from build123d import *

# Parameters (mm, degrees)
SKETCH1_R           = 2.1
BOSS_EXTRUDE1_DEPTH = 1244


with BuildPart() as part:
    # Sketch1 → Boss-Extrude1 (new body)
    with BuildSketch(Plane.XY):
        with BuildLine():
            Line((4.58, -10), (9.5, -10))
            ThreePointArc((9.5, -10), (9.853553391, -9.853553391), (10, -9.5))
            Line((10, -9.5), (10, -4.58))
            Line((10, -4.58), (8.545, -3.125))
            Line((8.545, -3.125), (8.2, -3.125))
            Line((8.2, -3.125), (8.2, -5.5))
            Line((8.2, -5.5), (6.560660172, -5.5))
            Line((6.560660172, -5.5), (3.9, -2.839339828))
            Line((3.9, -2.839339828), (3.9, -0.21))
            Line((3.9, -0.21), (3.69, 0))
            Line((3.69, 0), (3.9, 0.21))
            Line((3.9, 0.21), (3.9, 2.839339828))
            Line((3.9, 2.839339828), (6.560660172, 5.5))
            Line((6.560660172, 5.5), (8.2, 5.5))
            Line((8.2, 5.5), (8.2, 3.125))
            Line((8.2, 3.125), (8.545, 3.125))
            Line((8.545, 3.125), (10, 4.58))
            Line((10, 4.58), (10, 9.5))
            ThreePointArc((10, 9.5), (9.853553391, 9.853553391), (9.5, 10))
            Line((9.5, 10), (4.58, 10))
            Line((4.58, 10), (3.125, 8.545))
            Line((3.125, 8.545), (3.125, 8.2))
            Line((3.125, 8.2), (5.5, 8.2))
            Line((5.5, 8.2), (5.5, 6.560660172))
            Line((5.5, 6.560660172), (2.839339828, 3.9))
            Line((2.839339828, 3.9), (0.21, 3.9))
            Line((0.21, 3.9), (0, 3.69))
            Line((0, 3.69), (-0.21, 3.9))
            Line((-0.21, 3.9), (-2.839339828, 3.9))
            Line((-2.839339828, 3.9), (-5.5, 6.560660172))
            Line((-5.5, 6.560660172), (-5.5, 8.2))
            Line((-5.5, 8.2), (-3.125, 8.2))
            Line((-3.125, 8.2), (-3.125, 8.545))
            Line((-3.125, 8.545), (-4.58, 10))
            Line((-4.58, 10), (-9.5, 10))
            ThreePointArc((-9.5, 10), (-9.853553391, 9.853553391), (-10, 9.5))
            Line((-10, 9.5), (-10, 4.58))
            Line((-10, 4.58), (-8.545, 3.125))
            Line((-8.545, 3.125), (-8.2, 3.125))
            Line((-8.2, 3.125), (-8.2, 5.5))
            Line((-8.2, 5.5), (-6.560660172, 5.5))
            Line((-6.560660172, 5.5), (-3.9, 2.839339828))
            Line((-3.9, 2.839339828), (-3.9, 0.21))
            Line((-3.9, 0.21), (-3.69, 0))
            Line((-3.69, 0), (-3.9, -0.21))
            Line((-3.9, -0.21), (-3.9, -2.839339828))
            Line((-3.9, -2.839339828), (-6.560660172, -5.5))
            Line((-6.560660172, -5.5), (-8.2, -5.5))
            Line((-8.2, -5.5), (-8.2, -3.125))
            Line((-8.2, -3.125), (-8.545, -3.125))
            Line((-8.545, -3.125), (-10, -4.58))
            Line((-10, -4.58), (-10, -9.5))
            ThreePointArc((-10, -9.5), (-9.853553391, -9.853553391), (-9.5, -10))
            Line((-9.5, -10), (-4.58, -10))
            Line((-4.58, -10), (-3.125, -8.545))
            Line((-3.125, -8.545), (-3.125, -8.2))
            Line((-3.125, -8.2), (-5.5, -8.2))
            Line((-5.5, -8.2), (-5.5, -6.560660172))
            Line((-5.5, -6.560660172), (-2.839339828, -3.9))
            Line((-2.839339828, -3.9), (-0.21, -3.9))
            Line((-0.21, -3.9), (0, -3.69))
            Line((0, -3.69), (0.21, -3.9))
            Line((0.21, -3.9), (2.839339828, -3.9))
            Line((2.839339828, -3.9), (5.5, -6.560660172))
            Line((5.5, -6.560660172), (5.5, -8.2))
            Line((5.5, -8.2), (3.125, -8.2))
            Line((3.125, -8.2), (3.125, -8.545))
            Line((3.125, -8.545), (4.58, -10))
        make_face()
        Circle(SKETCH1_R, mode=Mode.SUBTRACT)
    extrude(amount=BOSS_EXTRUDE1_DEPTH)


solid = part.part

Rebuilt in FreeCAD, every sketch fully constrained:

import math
import FreeCAD as App
import Part
import Sketcher

V = App.Vector
Q = App.Units.Quantity

doc = App.newDocument("Part")
body = doc.addObject("PartDesign::Body", "Body")

# Sketch on XY plane
sketch1 = doc.addObject("Sketcher::SketchObject", "Sketch")
body.addObject(sketch1)
sketch1.AttachmentSupport = (doc.XY_Plane, [""])
sketch1.MapMode = "FlatFace"
sketch1.addGeometry(Part.LineSegment(V(4.58, -10, 0), V(9.5, -10, 0)), False)
sketch1.addGeometry(Part.ArcOfCircle(Part.Circle(V(9.5, -9.5, 0), V(0, 0, 1), 0.5), math.radians(-90), math.radians(0)), False)
sketch1.addGeometry(Part.LineSegment(V(10, -9.5, 0), V(10, -4.58, 0)), False)
sketch1.addGeometry(Part.LineSegment(V(10, -4.58, 0), V(8.54, -3.12, 0)), False)
sketch1.addGeometry(Part.LineSegment(V(8.54, -3.12, 0), V(8.2, -3.12, 0)), False)
sketch1.addGeometry(Part.LineSegment(V(8.2, -3.12, 0), V(8.2, -5.5, 0)), False)
sketch1.addGeometry(Part.LineSegment(V(8.2, -5.5, 0), V(6.56, -5.5, 0)), False)
sketch1.addGeometry(Part.LineSegment(V(6.56, -5.5, 0), V(3.9, -2.84, 0)), False)
sketch1.addGeometry(Part.LineSegment(V(3.9, -2.84, 0), V(3.9, -0.21, 0)), False)
sketch1.addGeometry(Part.LineSegment(V(3.9, -0.21, 0), V(3.69, 0, 0)), False)
sketch1.addGeometry(Part.LineSegment(V(3.69, 0, 0), V(3.9, 0.21, 0)), False)
sketch1.addGeometry(Part.LineSegment(V(3.9, 0.21, 0), V(3.9, 2.84, 0)), False)
sketch1.addGeometry(Part.LineSegment(V(3.9, 2.84, 0), V(6.56, 5.5, 0)), False)
sketch1.addGeometry(Part.LineSegment(V(6.56, 5.5, 0), V(8.2, 5.5, 0)), False)
sketch1.addGeometry(Part.LineSegment(V(8.2, 5.5, 0), V(8.2, 3.12, 0)), False)
sketch1.addGeometry(Part.LineSegment(V(8.2, 3.12, 0), V(8.54, 3.12, 0)), False)
sketch1.addGeometry(Part.LineSegment(V(8.54, 3.12, 0), V(10, 4.58, 0)), False)
sketch1.addGeometry(Part.LineSegment(V(10, 4.58, 0), V(10, 9.5, 0)), False)
sketch1.addGeometry(Part.ArcOfCircle(Part.Circle(V(9.5, 9.5, 0), V(0, 0, 1), 0.5), math.radians(0), math.radians(90)), False)
sketch1.addGeometry(Part.LineSegment(V(9.5, 10, 0), V(4.58, 10, 0)), False)
sketch1.addGeometry(Part.LineSegment(V(4.58, 10, 0), V(3.12, 8.54, 0)), False)
sketch1.addGeometry(Part.LineSegment(V(3.12, 8.54, 0), V(3.12, 8.2, 0)), False)
sketch1.addGeometry(Part.LineSegment(V(3.12, 8.2, 0), V(5.5, 8.2, 0)), False)
sketch1.addGeometry(Part.LineSegment(V(5.5, 8.2, 0), V(5.5, 6.56, 0)), False)
sketch1.addGeometry(Part.LineSegment(V(5.5, 6.56, 0), V(2.84, 3.9, 0)), False)
sketch1.addGeometry(Part.LineSegment(V(2.84, 3.9, 0), V(0.21, 3.9, 0)), False)
sketch1.addGeometry(Part.LineSegment(V(0.21, 3.9, 0), V(0, 3.69, 0)), False)
sketch1.addGeometry(Part.LineSegment(V(0, 3.69, 0), V(-0.21, 3.9, 0)), False)
sketch1.addGeometry(Part.LineSegment(V(-0.21, 3.9, 0), V(-2.84, 3.9, 0)), False)
sketch1.addGeometry(Part.LineSegment(V(-2.84, 3.9, 0), V(-5.5, 6.56, 0)), False)
sketch1.addGeometry(Part.LineSegment(V(-5.5, 6.56, 0), V(-5.5, 8.2, 0)), False)
sketch1.addGeometry(Part.LineSegment(V(-5.5, 8.2, 0), V(-3.12, 8.2, 0)), False)
sketch1.addGeometry(Part.LineSegment(V(-3.12, 8.2, 0), V(-3.12, 8.54, 0)), False)
sketch1.addGeometry(Part.LineSegment(V(-3.12, 8.54, 0), V(-4.58, 10, 0)), False)
sketch1.addGeometry(Part.LineSegment(V(-4.58, 10, 0), V(-9.5, 10, 0)), False)
sketch1.addGeometry(Part.ArcOfCircle(Part.Circle(V(-9.5, 9.5, 0), V(0, 0, 1), 0.5), math.radians(90), math.radians(180)), False)
sketch1.addGeometry(Part.LineSegment(V(-10, 9.5, 0), V(-10, 4.58, 0)), False)
sketch1.addGeometry(Part.LineSegment(V(-10, 4.58, 0), V(-8.54, 3.12, 0)), False)
sketch1.addGeometry(Part.LineSegment(V(-8.54, 3.12, 0), V(-8.2, 3.12, 0)), False)
sketch1.addGeometry(Part.LineSegment(V(-8.2, 3.12, 0), V(-8.2, 5.5, 0)), False)
sketch1.addGeometry(Part.LineSegment(V(-8.2, 5.5, 0), V(-6.56, 5.5, 0)), False)
sketch1.addGeometry(Part.LineSegment(V(-6.56, 5.5, 0), V(-3.9, 2.84, 0)), False)
sketch1.addGeometry(Part.LineSegment(V(-3.9, 2.84, 0), V(-3.9, 0.21, 0)), False)
sketch1.addGeometry(Part.LineSegment(V(-3.9, 0.21, 0), V(-3.69, 0, 0)), False)
sketch1.addGeometry(Part.LineSegment(V(-3.69, 0, 0), V(-3.9, -0.21, 0)), False)
sketch1.addGeometry(Part.LineSegment(V(-3.9, -0.21, 0), V(-3.9, -2.84, 0)), False)
sketch1.addGeometry(Part.LineSegment(V(-3.9, -2.84, 0), V(-6.56, -5.5, 0)), False)
sketch1.addGeometry(Part.LineSegment(V(-6.56, -5.5, 0), V(-8.2, -5.5, 0)), False)
sketch1.addGeometry(Part.LineSegment(V(-8.2, -5.5, 0), V(-8.2, -3.12, 0)), False)
sketch1.addGeometry(Part.LineSegment(V(-8.2, -3.12, 0), V(-8.54, -3.12, 0)), False)
sketch1.addGeometry(Part.LineSegment(V(-8.54, -3.12, 0), V(-10, -4.58, 0)), False)
sketch1.addGeometry(Part.LineSegment(V(-10, -4.58, 0), V(-10, -9.5, 0)), False)
sketch1.addGeometry(Part.ArcOfCircle(Part.Circle(V(-9.5, -9.5, 0), V(0, 0, 1), 0.5), math.radians(180), math.radians(270)), False)
sketch1.addGeometry(Part.LineSegment(V(-9.5, -10, 0), V(-4.58, -10, 0)), False)
sketch1.addGeometry(Part.LineSegment(V(-4.58, -10, 0), V(-3.12, -8.54, 0)), False)
sketch1.addGeometry(Part.LineSegment(V(-3.12, -8.54, 0), V(-3.12, -8.2, 0)), False)
sketch1.addGeometry(Part.LineSegment(V(-3.12, -8.2, 0), V(-5.5, -8.2, 0)), False)
sketch1.addGeometry(Part.LineSegment(V(-5.5, -8.2, 0), V(-5.5, -6.56, 0)), False)
sketch1.addGeometry(Part.LineSegment(V(-5.5, -6.56, 0), V(-2.84, -3.9, 0)), False)
sketch1.addGeometry(Part.LineSegment(V(-2.84, -3.9, 0), V(-0.21, -3.9, 0)), False)
sketch1.addGeometry(Part.LineSegment(V(-0.21, -3.9, 0), V(0, -3.69, 0)), False)
sketch1.addGeometry(Part.LineSegment(V(0, -3.69, 0), V(0.21, -3.9, 0)), False)
sketch1.addGeometry(Part.LineSegment(V(0.21, -3.9, 0), V(2.84, -3.9, 0)), False)
sketch1.addGeometry(Part.LineSegment(V(2.84, -3.9, 0), V(5.5, -6.56, 0)), False)
sketch1.addGeometry(Part.LineSegment(V(5.5, -6.56, 0), V(5.5, -8.2, 0)), False)
sketch1.addGeometry(Part.LineSegment(V(5.5, -8.2, 0), V(3.12, -8.2, 0)), False)
sketch1.addGeometry(Part.LineSegment(V(3.12, -8.2, 0), V(3.12, -8.54, 0)), False)
sketch1.addGeometry(Part.LineSegment(V(3.12, -8.54, 0), V(4.58, -10, 0)), False)
sketch1.addGeometry(Part.Circle(V(0, 0, 0), V(0, 0, 1), 2.1), False)
sketch1.addConstraint(Sketcher.Constraint("Tangent", 0, 2, 1, 1))
sketch1.addConstraint(Sketcher.Constraint("Tangent", 1, 2, 2, 1))
sketch1.addConstraint(Sketcher.Constraint("Coincident", 2, 2, 3, 1))
sketch1.addConstraint(Sketcher.Constraint("Coincident", 3, 2, 4, 1))
sketch1.addConstraint(Sketcher.Constraint("Coincident", 4, 2, 5, 1))
sketch1.addConstraint(Sketcher.Constraint("Coincident", 5, 2, 6, 1))
sketch1.addConstraint(Sketcher.Constraint("Coincident", 6, 2, 7, 1))
sketch1.addConstraint(Sketcher.Constraint("Coincident", 7, 2, 8, 1))
sketch1.addConstraint(Sketcher.Constraint("Coincident", 8, 2, 9, 1))
sketch1.addConstraint(Sketcher.Constraint("Coincident", 9, 2, 10, 1))
sketch1.addConstraint(Sketcher.Constraint("Coincident", 10, 2, 11, 1))
sketch1.addConstraint(Sketcher.Constraint("Coincident", 11, 2, 12, 1))
sketch1.addConstraint(Sketcher.Constraint("Coincident", 12, 2, 13, 1))
sketch1.addConstraint(Sketcher.Constraint("Coincident", 13, 2, 14, 1))
sketch1.addConstraint(Sketcher.Constraint("Coincident", 14, 2, 15, 1))
sketch1.addConstraint(Sketcher.Constraint("Coincident", 15, 2, 16, 1))
sketch1.addConstraint(Sketcher.Constraint("Coincident", 16, 2, 17, 1))
sketch1.addConstraint(Sketcher.Constraint("Tangent", 17, 2, 18, 1))
sketch1.addConstraint(Sketcher.Constraint("Tangent", 18, 2, 19, 1))
sketch1.addConstraint(Sketcher.Constraint("Coincident", 19, 2, 20, 1))
sketch1.addConstraint(Sketcher.Constraint("Coincident", 20, 2, 21, 1))
sketch1.addConstraint(Sketcher.Constraint("Coincident", 21, 2, 22, 1))
sketch1.addConstraint(Sketcher.Constraint("Coincident", 22, 2, 23, 1))
sketch1.addConstraint(Sketcher.Constraint("Coincident", 23, 2, 24, 1))
sketch1.addConstraint(Sketcher.Constraint("Coincident", 24, 2, 25, 1))
sketch1.addConstraint(Sketcher.Constraint("Coincident", 25, 2, 26, 1))
sketch1.addConstraint(Sketcher.Constraint("Coincident", 26, 2, 27, 1))
sketch1.addConstraint(Sketcher.Constraint("Coincident", 27, 2, 28, 1))
sketch1.addConstraint(Sketcher.Constraint("Coincident", 28, 2, 29, 1))
sketch1.addConstraint(Sketcher.Constraint("Coincident", 29, 2, 30, 1))
sketch1.addConstraint(Sketcher.Constraint("Coincident", 30, 2, 31, 1))
sketch1.addConstraint(Sketcher.Constraint("Coincident", 31, 2, 32, 1))
sketch1.addConstraint(Sketcher.Constraint("Coincident", 32, 2, 33, 1))
sketch1.addConstraint(Sketcher.Constraint("Coincident", 33, 2, 34, 1))
sketch1.addConstraint(Sketcher.Constraint("Tangent", 34, 2, 35, 1))
sketch1.addConstraint(Sketcher.Constraint("Tangent", 35, 2, 36, 1))
sketch1.addConstraint(Sketcher.Constraint("Coincident", 36, 2, 37, 1))
sketch1.addConstraint(Sketcher.Constraint("Coincident", 37, 2, 38, 1))
sketch1.addConstraint(Sketcher.Constraint("Coincident", 38, 2, 39, 1))
sketch1.addConstraint(Sketcher.Constraint("Coincident", 39, 2, 40, 1))
sketch1.addConstraint(Sketcher.Constraint("Coincident", 40, 2, 41, 1))
sketch1.addConstraint(Sketcher.Constraint("Coincident", 41, 2, 42, 1))
sketch1.addConstraint(Sketcher.Constraint("Coincident", 42, 2, 43, 1))
sketch1.addConstraint(Sketcher.Constraint("Coincident", 43, 2, 44, 1))
sketch1.addConstraint(Sketcher.Constraint("Coincident", 44, 2, 45, 1))
sketch1.addConstraint(Sketcher.Constraint("Coincident", 45, 2, 46, 1))
sketch1.addConstraint(Sketcher.Constraint("Coincident", 46, 2, 47, 1))
sketch1.addConstraint(Sketcher.Constraint("Coincident", 47, 2, 48, 1))
sketch1.addConstraint(Sketcher.Constraint("Coincident", 48, 2, 49, 1))
sketch1.addConstraint(Sketcher.Constraint("Coincident", 49, 2, 50, 1))
sketch1.addConstraint(Sketcher.Constraint("Coincident", 50, 2, 51, 1))
sketch1.addConstraint(Sketcher.Constraint("Tangent", 51, 2, 52, 1))
sketch1.addConstraint(Sketcher.Constraint("Tangent", 52, 2, 53, 1))
sketch1.addConstraint(Sketcher.Constraint("Coincident", 53, 2, 54, 1))
sketch1.addConstraint(Sketcher.Constraint("Coincident", 54, 2, 55, 1))
sketch1.addConstraint(Sketcher.Constraint("Coincident", 55, 2, 56, 1))
sketch1.addConstraint(Sketcher.Constraint("Coincident", 56, 2, 57, 1))
sketch1.addConstraint(Sketcher.Constraint("Coincident", 57, 2, 58, 1))
sketch1.addConstraint(Sketcher.Constraint("Coincident", 58, 2, 59, 1))
sketch1.addConstraint(Sketcher.Constraint("Coincident", 59, 2, 60, 1))
sketch1.addConstraint(Sketcher.Constraint("Coincident", 60, 2, 61, 1))
sketch1.addConstraint(Sketcher.Constraint("Coincident", 61, 2, 62, 1))
sketch1.addConstraint(Sketcher.Constraint("Coincident", 62, 2, 63, 1))
sketch1.addConstraint(Sketcher.Constraint("Coincident", 63, 2, 64, 1))
sketch1.addConstraint(Sketcher.Constraint("Coincident", 64, 2, 65, 1))
sketch1.addConstraint(Sketcher.Constraint("Coincident", 65, 2, 66, 1))
sketch1.addConstraint(Sketcher.Constraint("Coincident", 66, 2, 67, 1))
sketch1.addConstraint(Sketcher.Constraint("Coincident", 67, 2, 0, 1))
sketch1.addConstraint(Sketcher.Constraint("Horizontal", 0))
sketch1.addConstraint(Sketcher.Constraint("Vertical", 2))
sketch1.addConstraint(Sketcher.Constraint("Horizontal", 4))
sketch1.addConstraint(Sketcher.Constraint("Vertical", 5))
sketch1.addConstraint(Sketcher.Constraint("Horizontal", 6))
sketch1.addConstraint(Sketcher.Constraint("Vertical", 8))
sketch1.addConstraint(Sketcher.Constraint("Vertical", 11))
sketch1.addConstraint(Sketcher.Constraint("Horizontal", 13))
sketch1.addConstraint(Sketcher.Constraint("Vertical", 14))
sketch1.addConstraint(Sketcher.Constraint("Horizontal", 15))
sketch1.addConstraint(Sketcher.Constraint("Vertical", 17))
sketch1.addConstraint(Sketcher.Constraint("Horizontal", 19))
sketch1.addConstraint(Sketcher.Constraint("Vertical", 21))
sketch1.addConstraint(Sketcher.Constraint("Horizontal", 22))
sketch1.addConstraint(Sketcher.Constraint("Vertical", 23))
sketch1.addConstraint(Sketcher.Constraint("Horizontal", 25))
sketch1.addConstraint(Sketcher.Constraint("Horizontal", 28))
sketch1.addConstraint(Sketcher.Constraint("Vertical", 30))
sketch1.addConstraint(Sketcher.Constraint("Horizontal", 31))
sketch1.addConstraint(Sketcher.Constraint("Vertical", 32))
sketch1.addConstraint(Sketcher.Constraint("Horizontal", 34))
sketch1.addConstraint(Sketcher.Constraint("Vertical", 36))
sketch1.addConstraint(Sketcher.Constraint("Horizontal", 38))
sketch1.addConstraint(Sketcher.Constraint("Vertical", 39))
sketch1.addConstraint(Sketcher.Constraint("Horizontal", 40))
sketch1.addConstraint(Sketcher.Constraint("Vertical", 42))
sketch1.addConstraint(Sketcher.Constraint("Vertical", 45))
sketch1.addConstraint(Sketcher.Constraint("Horizontal", 47))
sketch1.addConstraint(Sketcher.Constraint("Vertical", 48))
sketch1.addConstraint(Sketcher.Constraint("Horizontal", 49))
sketch1.addConstraint(Sketcher.Constraint("Vertical", 51))
sketch1.addConstraint(Sketcher.Constraint("Horizontal", 53))
sketch1.addConstraint(Sketcher.Constraint("Vertical", 55))
sketch1.addConstraint(Sketcher.Constraint("Horizontal", 56))
sketch1.addConstraint(Sketcher.Constraint("Vertical", 57))
sketch1.addConstraint(Sketcher.Constraint("Horizontal", 59))
sketch1.addConstraint(Sketcher.Constraint("Horizontal", 62))
sketch1.addConstraint(Sketcher.Constraint("Vertical", 64))
sketch1.addConstraint(Sketcher.Constraint("Horizontal", 65))
sketch1.addConstraint(Sketcher.Constraint("Vertical", 66))
sketch1.addConstraint(Sketcher.Constraint("Coincident", 68, 3, -1, 1))
sketch1.addConstraint(Sketcher.Constraint("Equal", 1, 18))
sketch1.addConstraint(Sketcher.Constraint("Equal", 18, 35))
sketch1.addConstraint(Sketcher.Constraint("Equal", 35, 52))
sketch1.addConstraint(Sketcher.Constraint("Symmetric", 1, 3, 35, 3, -1, 1))
sketch1.addConstraint(Sketcher.Constraint("Symmetric", 18, 3, 52, 3, -1, 1))
sketch1.addConstraint(Sketcher.Constraint("Symmetric", 3, 2, 37, 2, -1, 1))
sketch1.addConstraint(Sketcher.Constraint("Symmetric", 5, 2, 39, 2, -1, 1))
sketch1.addConstraint(Sketcher.Constraint("Symmetric", 7, 2, 41, 2, -1, 1))
sketch1.addConstraint(Sketcher.Constraint("Symmetric", 9, 2, 43, 2, -1, 1))
sketch1.addConstraint(Sketcher.Constraint("Symmetric", 10, 2, 44, 2, -1, 1))
sketch1.addConstraint(Sketcher.Constraint("Symmetric", 12, 2, 46, 2, -1, 1))
sketch1.addConstraint(Sketcher.Constraint("Symmetric", 14, 2, 48, 2, -1, 1))
sketch1.addConstraint(Sketcher.Constraint("Symmetric", 20, 2, 54, 2, -1, 1))
sketch1.addConstraint(Sketcher.Constraint("Symmetric", 22, 2, 56, 2, -1, 1))
sketch1.addConstraint(Sketcher.Constraint("Symmetric", 24, 2, 58, 2, -1, 1))
sketch1.addConstraint(Sketcher.Constraint("Symmetric", 26, 2, 60, 2, -1, 1))
sketch1.addConstraint(Sketcher.Constraint("Symmetric", 27, 2, 61, 2, -1, 1))
sketch1.addConstraint(Sketcher.Constraint("Symmetric", 29, 2, 63, 2, -1, 1))
sketch1.addConstraint(Sketcher.Constraint("Symmetric", 31, 2, 65, 2, -1, 1))
sketch1.addConstraint(Sketcher.Constraint("Symmetric", 18, 3, 35, 3, -2))
sketch1.addConstraint(Sketcher.Constraint("Symmetric", 25, 2, 27, 2, -2))
sketch1.addConstraint(Sketcher.Constraint("Symmetric", 23, 2, 29, 2, -2))
sketch1.addConstraint(Sketcher.Constraint("Symmetric", 21, 2, 31, 2, -2))
sketch1.addConstraint(Sketcher.Constraint("Symmetric", 15, 2, 37, 2, -2))
sketch1.addConstraint(Sketcher.Constraint("Symmetric", 13, 2, 39, 2, -2))
sketch1.addConstraint(Sketcher.Constraint("Symmetric", 11, 2, 41, 2, -2))
sketch1.addConstraint(Sketcher.Constraint("PointOnObject", 9, 2, -1))
sketch1.addConstraint(Sketcher.Constraint("PointOnObject", 26, 2, -2))
sketch1.addConstraint(Sketcher.Constraint("Parallel", 3, 7))
sketch1.addConstraint(Sketcher.Constraint("Parallel", 7, 9))
sketch1.addConstraint(Sketcher.Constraint("Perpendicular", 9, 10))
sketch1.addConstraint(Sketcher.Constraint("Parallel", 10, 12))
sketch1.addConstraint(Sketcher.Constraint("Parallel", 12, 16))
sketch1.addConstraint(Sketcher.Constraint("Parallel", 16, 20))
sketch1.addConstraint(Sketcher.Constraint("Parallel", 20, 24))
sketch1.addConstraint(Sketcher.Constraint("Parallel", 24, 26))
sketch1.addConstraint(Sketcher.Constraint("Perpendicular", 26, 27))
sketch1.addConstraint(Sketcher.Constraint("Parallel", 27, 29))
sketch1.addConstraint(Sketcher.Constraint("Parallel", 29, 33))
sketch1.addConstraint(Sketcher.Constraint("Parallel", 33, 37))
sketch1.addConstraint(Sketcher.Constraint("Parallel", 37, 41))
sketch1.addConstraint(Sketcher.Constraint("Parallel", 41, 43))
sketch1.addConstraint(Sketcher.Constraint("Parallel", 44, 46))
sketch1.addConstraint(Sketcher.Constraint("Parallel", 46, 50))
sketch1.addConstraint(Sketcher.Constraint("Parallel", 50, 54))
sketch1.addConstraint(Sketcher.Constraint("Parallel", 54, 58))
sketch1.addConstraint(Sketcher.Constraint("Parallel", 58, 60))
sketch1.addConstraint(Sketcher.Constraint("Parallel", 61, 63))
sketch1.addConstraint(Sketcher.Constraint("Parallel", 63, 67))
sketch1.addConstraint(Sketcher.Constraint("Horizontal", 20, 2, 32, 2))
sketch1.addConstraint(Sketcher.Constraint("Horizontal", 2, 2, 50, 2))
sketch1.addConstraint(Sketcher.Constraint("Horizontal", 54, 2, 66, 2))
sketch1.addConstraint(Sketcher.Constraint("Equal", 53, 2))
sketch1.addConstraint(Sketcher.Constraint("Equal", 65, 5))
sketch1.addConstraint(Sketcher.Constraint("Equal", 62, 8))
sketch1.addConstraint(Sketcher.Constraint("Equal", 49, 21))
sketch1.addConstraint(Sketcher.Constraint("Equal", 47, 23))
sketch1.addConstraint(Sketcher.Constraint("Equal", 16, 20))
sketch1.addConstraint(Sketcher.Constraint("Equal", 12, 24))
sketch1.addConstraint(Sketcher.Constraint("Equal", 10, 26))
sketch1.addConstraint(Sketcher.Constraint("Diameter", 68, Q("4.2 mm")))
sketch1.addConstraint(Sketcher.Constraint("Radius", 1, Q("0.5 mm")))
sketch1.addConstraint(Sketcher.Constraint("DistanceY", 0, 2, -1, 1, Q("10 mm")))
sketch1.addConstraint(Sketcher.Constraint("DistanceX", 0, 1, 0, 2, Q("4.92 mm")))
sketch1.addConstraint(Sketcher.Constraint("DistanceX", -1, 1, 4, 2, Q("8.2 mm")))
sketch1.addConstraint(Sketcher.Constraint("DistanceY", 5, 2, -1, 1, Q("5.5 mm")))
sketch1.addConstraint(Sketcher.Constraint("DistanceX", -1, 1, 7, 2, Q("3.9 mm")))
sketch1.addConstraint(Sketcher.Constraint("DistanceX", 4, 2, 4, 1, Q("0.345 mm")))
sketch1.addConstraint(Sketcher.Constraint("DistanceY", 8, 2, -1, 1, Q("0.21 mm")))
sketch1.addConstraint(Sketcher.Constraint("DistanceX", 6, 2, 6, 1, Q("1.63934 mm")))
pad1 = doc.addObject("PartDesign::Pad", "Pad")
body.addObject(pad1)
pad1.Profile = sketch1
pad1.Length = 1244

doc.recompute()
